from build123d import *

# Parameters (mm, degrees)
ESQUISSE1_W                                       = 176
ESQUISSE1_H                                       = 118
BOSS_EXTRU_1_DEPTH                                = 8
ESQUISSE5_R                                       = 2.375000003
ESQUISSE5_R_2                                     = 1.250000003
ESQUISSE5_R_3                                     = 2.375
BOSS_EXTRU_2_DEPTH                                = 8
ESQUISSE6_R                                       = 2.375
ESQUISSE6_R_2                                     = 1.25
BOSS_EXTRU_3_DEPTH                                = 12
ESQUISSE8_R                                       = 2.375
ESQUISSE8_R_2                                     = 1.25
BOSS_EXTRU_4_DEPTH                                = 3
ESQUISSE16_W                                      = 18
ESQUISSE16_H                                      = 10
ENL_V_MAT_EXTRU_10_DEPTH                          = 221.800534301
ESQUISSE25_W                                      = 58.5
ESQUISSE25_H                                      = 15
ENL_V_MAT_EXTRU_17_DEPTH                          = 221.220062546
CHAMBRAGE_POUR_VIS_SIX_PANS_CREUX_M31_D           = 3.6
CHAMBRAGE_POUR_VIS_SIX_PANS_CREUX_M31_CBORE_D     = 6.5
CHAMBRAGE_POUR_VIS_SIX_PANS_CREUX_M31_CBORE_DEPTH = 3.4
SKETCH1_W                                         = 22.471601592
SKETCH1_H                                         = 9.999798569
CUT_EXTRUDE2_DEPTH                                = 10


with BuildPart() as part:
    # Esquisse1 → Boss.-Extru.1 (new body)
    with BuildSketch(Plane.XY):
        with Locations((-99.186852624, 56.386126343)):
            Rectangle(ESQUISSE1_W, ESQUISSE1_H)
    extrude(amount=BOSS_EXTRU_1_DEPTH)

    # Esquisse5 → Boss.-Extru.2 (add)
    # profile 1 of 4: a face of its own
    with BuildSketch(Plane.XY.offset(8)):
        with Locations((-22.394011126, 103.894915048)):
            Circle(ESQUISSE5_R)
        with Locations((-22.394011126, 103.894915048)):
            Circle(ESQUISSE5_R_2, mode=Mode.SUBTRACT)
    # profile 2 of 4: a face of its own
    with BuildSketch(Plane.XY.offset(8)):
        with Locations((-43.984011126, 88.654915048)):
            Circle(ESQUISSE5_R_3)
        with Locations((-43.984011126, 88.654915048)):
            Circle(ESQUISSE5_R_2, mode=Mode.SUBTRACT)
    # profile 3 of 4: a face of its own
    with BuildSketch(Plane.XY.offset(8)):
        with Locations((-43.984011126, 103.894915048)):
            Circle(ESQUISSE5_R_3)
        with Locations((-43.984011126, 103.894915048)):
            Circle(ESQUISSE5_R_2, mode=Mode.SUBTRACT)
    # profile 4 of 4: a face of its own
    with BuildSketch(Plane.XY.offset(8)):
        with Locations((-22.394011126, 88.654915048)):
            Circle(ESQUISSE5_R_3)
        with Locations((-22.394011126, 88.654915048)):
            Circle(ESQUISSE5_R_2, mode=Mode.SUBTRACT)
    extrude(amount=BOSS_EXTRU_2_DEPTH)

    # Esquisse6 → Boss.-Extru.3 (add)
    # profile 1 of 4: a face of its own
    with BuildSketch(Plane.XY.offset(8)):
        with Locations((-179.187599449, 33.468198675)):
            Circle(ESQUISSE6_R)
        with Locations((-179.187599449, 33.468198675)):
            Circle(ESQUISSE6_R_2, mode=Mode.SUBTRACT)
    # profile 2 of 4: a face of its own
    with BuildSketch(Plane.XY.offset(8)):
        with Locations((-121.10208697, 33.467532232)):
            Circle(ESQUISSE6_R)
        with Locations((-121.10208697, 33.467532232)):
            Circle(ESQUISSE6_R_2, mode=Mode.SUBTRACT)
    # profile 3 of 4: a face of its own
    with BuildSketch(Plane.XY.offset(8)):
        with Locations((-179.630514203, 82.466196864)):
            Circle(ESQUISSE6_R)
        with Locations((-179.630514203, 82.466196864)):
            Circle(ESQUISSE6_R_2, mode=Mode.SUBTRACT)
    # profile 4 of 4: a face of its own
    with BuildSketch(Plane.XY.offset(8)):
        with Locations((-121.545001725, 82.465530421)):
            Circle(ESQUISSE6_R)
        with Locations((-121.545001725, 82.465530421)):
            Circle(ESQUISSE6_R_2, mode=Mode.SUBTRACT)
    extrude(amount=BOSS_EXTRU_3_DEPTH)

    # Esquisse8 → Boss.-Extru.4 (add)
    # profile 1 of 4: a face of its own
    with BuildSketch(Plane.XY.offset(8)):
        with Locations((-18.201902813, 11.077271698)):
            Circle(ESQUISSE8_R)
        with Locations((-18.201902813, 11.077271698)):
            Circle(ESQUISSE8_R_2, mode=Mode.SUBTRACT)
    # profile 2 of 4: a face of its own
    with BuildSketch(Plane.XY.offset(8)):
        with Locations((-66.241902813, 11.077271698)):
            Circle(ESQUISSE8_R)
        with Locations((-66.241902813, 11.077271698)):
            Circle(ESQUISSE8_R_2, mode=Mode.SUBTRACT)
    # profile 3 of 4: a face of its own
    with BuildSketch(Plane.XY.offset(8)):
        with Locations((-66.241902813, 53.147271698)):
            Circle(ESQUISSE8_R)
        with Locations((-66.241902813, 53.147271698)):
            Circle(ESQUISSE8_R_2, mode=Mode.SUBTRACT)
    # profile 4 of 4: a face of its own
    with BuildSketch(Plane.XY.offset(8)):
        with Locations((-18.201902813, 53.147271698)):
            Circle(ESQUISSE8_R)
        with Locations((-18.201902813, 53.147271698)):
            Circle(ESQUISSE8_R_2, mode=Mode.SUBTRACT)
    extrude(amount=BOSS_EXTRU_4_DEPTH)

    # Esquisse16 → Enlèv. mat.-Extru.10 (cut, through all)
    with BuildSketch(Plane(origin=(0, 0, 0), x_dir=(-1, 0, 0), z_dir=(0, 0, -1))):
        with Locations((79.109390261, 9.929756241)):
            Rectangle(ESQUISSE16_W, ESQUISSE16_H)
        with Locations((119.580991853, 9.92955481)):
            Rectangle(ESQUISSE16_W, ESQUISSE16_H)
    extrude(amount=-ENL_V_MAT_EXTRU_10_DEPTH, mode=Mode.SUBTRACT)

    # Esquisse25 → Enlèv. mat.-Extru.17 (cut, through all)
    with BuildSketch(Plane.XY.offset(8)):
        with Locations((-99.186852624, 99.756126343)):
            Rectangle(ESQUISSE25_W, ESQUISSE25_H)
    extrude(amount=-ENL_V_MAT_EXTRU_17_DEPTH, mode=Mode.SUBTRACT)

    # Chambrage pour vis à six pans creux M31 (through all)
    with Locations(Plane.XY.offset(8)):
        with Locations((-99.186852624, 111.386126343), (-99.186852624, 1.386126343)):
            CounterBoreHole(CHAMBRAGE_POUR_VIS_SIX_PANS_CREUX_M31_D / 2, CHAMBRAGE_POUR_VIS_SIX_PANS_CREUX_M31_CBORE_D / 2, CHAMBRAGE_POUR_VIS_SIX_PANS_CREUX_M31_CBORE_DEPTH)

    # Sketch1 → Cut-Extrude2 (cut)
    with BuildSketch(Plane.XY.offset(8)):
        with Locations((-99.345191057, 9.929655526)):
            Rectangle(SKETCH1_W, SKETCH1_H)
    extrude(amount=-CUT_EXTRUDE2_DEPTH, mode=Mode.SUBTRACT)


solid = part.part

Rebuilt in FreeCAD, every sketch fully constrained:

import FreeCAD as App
import Part
import Sketcher

doc = App.newDocument("Part")
body = doc.addObject("PartDesign::Body", "Body")

sketch1 = doc.addObject("Sketcher::SketchObject", "Sketch")
body.addObject(sketch1)
sketch1.AttachmentSupport = (doc.XY_Plane, [""])
sketch1.MapMode = "FlatFace"
sketch1.addGeometry(Part.LineSegment(App.Vector(-187, 115, 0), App.Vector(-187, -3, 0)), False)
sketch1.addGeometry(Part.LineSegment(App.Vector(-187, -3, 0), App.Vector(-11, -3, 0)), False)
sketch1.addGeometry(Part.LineSegment(App.Vector(-11, -3, 0), App.Vector(-11, 115, 0)), False)
sketch1.addGeometry(Part.LineSegment(App.Vector(-11, 115, 0), App.Vector(-187, 115, 0)), False)
sketch1.addConstraint(Sketcher.Constraint("Coincident", 0, 2, 1, 1))
sketch1.addConstraint(Sketcher.Constraint("Coincident", 1, 2, 2, 1))
sketch1.addConstraint(Sketcher.Constraint("Coincident", 2, 2, 3, 1))
sketch1.addConstraint(Sketcher.Constraint("Coincident", 3, 2, 0, 1))
sketch1.addConstraint(Sketcher.Constraint("Vertical", 0))
sketch1.addConstraint(Sketcher.Constraint("Horizontal", 1))
sketch1.addConstraint(Sketcher.Constraint("Vertical", 2))
sketch1.addConstraint(Sketcher.Constraint("Horizontal", 3))
sketch1.addConstraint(Sketcher.Constraint("DistanceX", 1, 1, 1, 2, 176.0))
sketch1.addConstraint(Sketcher.Constraint("DistanceY", 0, 2, 0, 1, 118.0))
sketch1.addConstraint(Sketcher.Constraint("DistanceX", 0, 2, -1, 1, 187.186853))
sketch1.addConstraint(Sketcher.Constraint("DistanceY", 0, 2, -1, 1, 2.613874))
pad1 = doc.addObject("PartDesign::Pad", "Pad")
body.addObject(pad1)
pad1.Profile = sketch1
pad1.Length = 8

sketch2 = doc.addObject("Sketcher::SketchObject", "Sketch001")
body.addObject(sketch2)
sketch2.AttachmentSupport = (doc.XY_Plane, [""])
sketch2.MapMode = "FlatFace"
sketch2.AttachmentOffset = App.Placement(App.Vector(0, 0, 8), App.Rotation())
sketch2.addGeometry(Part.Circle(App.Vector(-22.4, 103.9, 0), App.Vector(0, 0, 1), 2.4), False)
sketch2.addGeometry(Part.Circle(App.Vector(-22.4, 103.9, 0), App.Vector(0, 0, 1), 1.3), False)
sketch2.addGeometry(Part.Circle(App.Vector(-44, 88.7, 0), App.Vector(0, 0, 1), 2.4), False)
sketch2.addGeometry(Part.Circle(App.Vector(-44, 88.7, 0), App.Vector(0, 0, 1), 1.3), False)
sketch2.addGeometry(Part.Circle(App.Vector(-44, 103.9, 0), App.Vector(0, 0, 1), 2.4), False)
sketch2.addGeometry(Part.Circle(App.Vector(-44, 103.9, 0), App.Vector(0, 0, 1), 1.3), False)
sketch2.addGeometry(Part.Circle(App.Vector(-22.4, 88.7, 0), App.Vector(0, 0, 1), 2.4), False)
sketch2.addGeometry(Part.Circle(App.Vector(-22.4, 88.7, 0), App.Vector(0, 0, 1), 1.3), False)
sketch2.addConstraint(Sketcher.Constraint("Coincident", 1, 3, 0, 3))
sketch2.addConstraint(Sketcher.Constraint("Coincident", 3, 3, 2, 3))
sketch2.addConstraint(Sketcher.Constraint("Coincident", 5, 3, 4, 3))
sketch2.addConstraint(Sketcher.Constraint("Coincident", 7, 3, 6, 3))
sketch2.addConstraint(Sketcher.Constraint("Equal", 0, 2))
sketch2.addConstraint(Sketcher.Constraint("Equal", 1, 3))
sketch2.addConstraint(Sketcher.Constraint("Equal", 2, 4))
sketch2.addConstraint(Sketcher.Constraint("Equal", 3, 5))
sketch2.addConstraint(Sketcher.Constraint("Equal", 4, 6))
sketch2.addConstraint(Sketcher.Constraint("Equal", 5, 7))
sketch2.addConstraint(Sketcher.Constraint("Horizontal", 1, 3, 4, 3))
sketch2.addConstraint(Sketcher.Constraint("Horizontal", 3, 3, 6, 3))
sketch2.addConstraint(Sketcher.Constraint("Vertical", 3, 3, 4, 3))
sketch2.addConstraint(Sketcher.Constraint("Vertical", 1, 3, 6, 3))
sketch2.addConstraint(Sketcher.Constraint("Diameter", 1, 2.5))
sketch2.addConstraint(Sketcher.Constraint("Diameter", 0, 4.75))
sketch2.addConstraint(Sketcher.Constraint("DistanceX", 2, 3, 0, 3, 21.59))
sketch2.addConstraint(Sketcher.Constraint("DistanceY", 2, 3, 0, 3, 15.24))
sketch2.addConstraint(Sketcher.Constraint("DistanceX", 0, 3, -1, 1, 22.394011))
sketch2.addConstraint(Sketcher.Constraint("DistanceY", -1, 1, 0, 3, 103.894915))
pad2 = doc.addObject("PartDesign::Pad", "Pad001")
body.addObject(pad2)
pad2.Profile = sketch2
pad2.Length = 8

sketch3 = doc.addObject("Sketcher::SketchObject", "Sketch002")
body.addObject(sketch3)
sketch3.AttachmentSupport = (doc.XY_Plane, [""])
sketch3.MapMode = "FlatFace"
sketch3.AttachmentOffset = App.Placement(App.Vector(0, 0, 8), App.Rotation())
sketch3.addGeometry(Part.Circle(App.Vector(-179.2, 33.5, 0), App.Vector(0, 0, 1), 2.4), False)
sketch3.addGeometry(Part.Circle(App.Vector(-179.2, 33.5, 0), App.Vector(0, 0, 1), 1.2), False)
sketch3.addGeometry(Part.Circle(App.Vector(-121.1, 33.5, 0), App.Vector(0, 0, 1), 2.4), False)
sketch3.addGeometry(Part.Circle(App.Vector(-121.1, 33.5, 0), App.Vector(0, 0, 1), 1.2), False)
sketch3.addGeometry(Part.Circle(App.Vector(-179.6, 82.5, 0), App.Vector(0, 0, 1), 2.4), False)
sketch3.addGeometry(Part.Circle(App.Vector(-179.6, 82.5, 0), App.Vector(0, 0, 1), 1.2), False)
sketch3.addGeometry(Part.Circle(App.Vector(-121.5, 82.5, 0), App.Vector(0, 0, 1), 2.4), False)
sketch3.addGeometry(Part.Circle(App.Vector(-121.5, 82.5, 0), App.Vector(0, 0, 1), 1.2), False)
sketch3.addConstraint(Sketcher.Constraint("Coincident", 1, 3, 0, 3))
sketch3.addConstraint(Sketcher.Constraint("Coincident", 3, 3, 2, 3))
sketch3.addConstraint(Sketcher.Constraint("Coincident", 5, 3, 4, 3))
sketch3.addConstraint(Sketcher.Constraint("Coincident", 7, 3, 6, 3))
sketch3.addConstraint(Sketcher.Constraint("Equal", 0, 2))
sketch3.addConstraint(Sketcher.Constraint("Equal", 1, 3))
sketch3.addConstraint(Sketcher.Constraint("Equal", 2, 4))
sketch3.addConstraint(Sketcher.Constraint("Equal", 3, 5))
sketch3.addConstraint(Sketcher.Constraint("Equal", 4, 6))
sketch3.addConstraint(Sketcher.Constraint("Equal", 5, 7))
sketch3.addConstraint(Sketcher.Constraint("Diameter", 1, 2.5))
sketch3.addConstraint(Sketcher.Constraint("Diameter", 0, 4.75))
sketch3.addConstraint(Sketcher.Constraint("DistanceX", 6, 3, -1, 1, 121.545002))
sketch3.addConstraint(Sketcher.Constraint("DistanceY", 0, 3, 4, 3, 48.997998))
sketch3.addConstraint(Sketcher.Constraint("DistanceY", 2, 3, 6, 3, 48.997998))
sketch3.addConstraint(Sketcher.Constraint("DistanceX", 0, 3, -1, 1, 179.187599))
sketch3.addConstraint(Sketcher.Constraint("DistanceY", -1, 1, 0, 3, 33.468199))
sketch3.addConstraint(Sketcher.Constraint("DistanceY", -1, 1, 6, 3, 82.46553))
sketch3.addConstraint(Sketcher.Constraint("DistanceX", 2, 3, -1, 1, 121.102087))
sketch3.addConstraint(Sketcher.Constraint("DistanceX", 4, 3, -1, 1, 179.630514))
pad3 = doc.addObject("PartDesign::Pad", "Pad002")
body.addObject(pad3)
pad3.Profile = sketch3
pad3.Length = 12

sketch4 = doc.addObject("Sketcher::SketchObject", "Sketch003")
body.addObject(sketch4)
sketch4.AttachmentSupport = (doc.XY_Plane, [""])
sketch4.MapMode = "FlatFace"
sketch4.AttachmentOffset = App.Placement(App.Vector(0, 0, 8), App.Rotation())
sketch4.addGeometry(Part.Circle(App.Vector(-18.2, 11.1, 0), App.Vector(0, 0, 1), 2.4), False)
sketch4.addGeometry(Part.Circle(App.Vector(-18.2, 11.1, 0), App.Vector(0, 0, 1), 1.2), False)
sketch4.addGeometry(Part.Circle(App.Vector(-66.2, 11.1, 0), App.Vector(0, 0, 1), 2.4), False)
sketch4.addGeometry(Part.Circle(App.Vector(-66.2, 11.1, 0), App.Vector(0, 0, 1), 1.2), False)
sketch4.addGeometry(Part.Circle(App.Vector(-66.2, 53.1, 0), App.Vector(0, 0, 1), 2.4), False)
sketch4.addGeometry(Part.Circle(App.Vector(-66.2, 53.1, 0), App.Vector(0, 0, 1), 1.2), False)
sketch4.addGeometry(Part.Circle(App.Vector(-18.2, 53.1, 0), App.Vector(0, 0, 1), 2.4), False)
sketch4.addGeometry(Part.Circle(App.Vector(-18.2, 53.1, 0), App.Vector(0, 0, 1), 1.2), False)
sketch4.addConstraint(Sketcher.Constraint("Coincident", 1, 3, 0, 3))
sketch4.addConstraint(Sketcher.Constraint("Coincident", 3, 3, 2, 3))
sketch4.addConstraint(Sketcher.Constraint("Coincident", 5, 3, 4, 3))
sketch4.addConstraint(Sketcher.Constraint("Coincident", 7, 3, 6, 3))
sketch4.addConstraint(Sketcher.Constraint("Equal", 0, 2))
sketch4.addConstraint(Sketcher.Constraint("Equal", 1, 3))
sketch4.addConstraint(Sketcher.Constraint("Equal", 2, 4))
sketch4.addConstraint(Sketcher.Constraint("Equal", 3, 5))
sketch4.addConstraint(Sketcher.Constraint("Equal", 4, 6))
sketch4.addConstraint(Sketcher.Constraint("Equal", 5, 7))
sketch4.addConstraint(Sketcher.Constraint("Horizontal", 1, 3, 2, 3))
sketch4.addConstraint(Sketcher.Constraint("Horizontal", 5, 3, 6, 3))
sketch4.addConstraint(Sketcher.Constraint("Vertical", 3, 3, 4, 3))
sketch4.addConstraint(Sketcher.Constraint("Vertical", 1, 3, 6, 3))
sketch4.addConstraint(Sketcher.Constraint("Diameter", 1, 2.5))
sketch4.addConstraint(Sketcher.Constraint("Diameter", 0, 4.75))
sketch4.addConstraint(Sketcher.Constraint("DistanceX", 2, 3, 0, 3, 48.04))
sketch4.addConstraint(Sketcher.Constraint("DistanceY", 2, 3, 4, 3, 42.07))
sketch4.addConstraint(Sketcher.Constraint("DistanceY", -1, 1, 0, 3, 11.077272))
sketch4.addConstraint(Sketcher.Constraint("DistanceX", 0, 3, -1, 1, 18.201903))
pad4 = doc.addObject("PartDesign::Pad", "Pad003")
body.addObject(pad4)
pad4.Profile = sketch4
pad4.Length = 3

sketch5 = doc.addObject("Sketcher::SketchObject", "Sketch004")
body.addObject(sketch5)
sketch5.AttachmentSupport = (doc.XY_Plane, [""])
sketch5.MapMode = "FlatFace"
sketch5.addGeometry(Part.LineSegment(App.Vector(-70, 15, 0), App.Vector(-70, 5, 0)), False)
sketch5.addGeometry(Part.LineSegment(App.Vector(-70, 5, 0), App.Vector(-88, 5, 0)), False)
sketch5.addGeometry(Part.LineSegment(App.Vector(-88, 5, 0), App.Vector(-88, 15, 0)), False)
sketch5.addGeometry(Part.LineSegment(App.Vector(-88, 15, 0), App.Vector(-70, 15, 0)), False)
sketch5.addGeometry(Part.LineSegment(App.Vector(-111, 15, 0), App.Vector(-111, 5, 0)), False)
sketch5.addGeometry(Part.LineSegment(App.Vector(-111, 5, 0), App.Vector(-129, 5, 0)), False)
sketch5.addGeometry(Part.LineSegment(App.Vector(-129, 5, 0), App.Vector(-129, 15, 0)), False)
sketch5.addGeometry(Part.LineSegment(App.Vector(-129, 15, 0), App.Vector(-111, 15, 0)), False)
sketch5.addConstraint(Sketcher.Constraint("Coincident", 0, 2, 1, 1))
sketch5.addConstraint(Sketcher.Constraint("Coincident", 1, 2, 2, 1))
sketch5.addConstraint(Sketcher.Constraint("Coincident", 2, 2, 3, 1))
sketch5.addConstraint(Sketcher.Constraint("Coincident", 3, 2, 0, 1))
sketch5.addConstraint(Sketcher.Constraint("Coincident", 4, 2, 5, 1))
sketch5.addConstraint(Sketcher.Constraint("Coincident", 5, 2, 6, 1))
sketch5.addConstraint(Sketcher.Constraint("Coincident", 6, 2, 7, 1))
sketch5.addConstraint(Sketcher.Constraint("Coincident", 7, 2, 4, 1))
sketch5.addConstraint(Sketcher.Constraint("Vertical", 0))
sketch5.addConstraint(Sketcher.Constraint("Horizontal", 1))
sketch5.addConstraint(Sketcher.Constraint("Vertical", 2))
sketch5.addConstraint(Sketcher.Constraint("Horizontal", 3))
sketch5.addConstraint(Sketcher.Constraint("Vertical", 4))
sketch5.addConstraint(Sketcher.Constraint("Horizontal", 5))
sketch5.addConstraint(Sketcher.Constraint("Vertical", 6))
sketch5.addConstraint(Sketcher.Constraint("Horizontal", 7))
sketch5.addConstraint(Sketcher.Constraint("Equal", 3, 5))
sketch5.addConstraint(Sketcher.Constraint("Equal", 2, 4))
sketch5.addConstraint(Sketcher.Constraint("DistanceX", 1, 2, 1, 1, 18.0))
sketch5.addConstraint(Sketcher.Constraint("DistanceY", 0, 2, 0, 1, 10.0))
sketch5.addConstraint(Sketcher.Constraint("DistanceX", 4, 2, 1, 2, 22.471602))
sketch5.addConstraint(Sketcher.Constraint("DistanceY", 4, 2, 1, 2, 0.000201))
sketch5.addConstraint(Sketcher.Constraint("DistanceX", 0, 2, -1, 1, 70.10939))
sketch5.addConstraint(Sketcher.Constraint("DistanceY", -1, 1, 0, 2, 4.929756))
pocket1 = doc.addObject("PartDesign::Pocket", "Pocket")
body.addObject(pocket1)
pocket1.Profile = sketch5
pocket1.Type = "ThroughAll"
pocket1.Reversed = True

sketch6 = doc.addObject("Sketcher::SketchObject", "Sketch005")
body.addObject(sketch6)
sketch6.AttachmentSupport = (doc.XY_Plane, [""])
sketch6.MapMode = "FlatFace"
sketch6.AttachmentOffset = App.Placement(App.Vector(0, 0, 8), App.Rotation())
sketch6.addGeometry(Part.LineSegment(App.Vector(-128, 107, 0), App.Vector(-128, 92, 0)), False)
sketch6.addGeometry(Part.LineSegment(App.Vector(-128, 92, 0), App.Vector(-70, 92, 0)), False)
sketch6.addGeometry(Part.LineSegment(App.Vector(-70, 92, 0), App.Vector(-70, 107, 0)), False)
sketch6.addGeometry(Part.LineSegment(App.Vector(-70, 107, 0), App.Vector(-128, 107, 0)), False)
sketch6.addConstraint(Sketcher.Constraint("Coincident", 0, 2, 1, 1))
sketch6.addConstraint(Sketcher.Constraint("Coincident", 1, 2, 2, 1))
sketch6.addConstraint(Sketcher.Constraint("Coincident", 2, 2, 3, 1))
sketch6.addConstraint(Sketcher.Constraint("Coincident", 3, 2, 0, 1))
sketch6.addConstraint(Sketcher.Constraint("Vertical", 0))
sketch6.addConstraint(Sketcher.Constraint("Horizontal", 1))
sketch6.addConstraint(Sketcher.Constraint("Vertical", 2))
sketch6.addConstraint(Sketcher.Constraint("Horizontal", 3))
sketch6.addConstraint(Sketcher.Constraint("DistanceY", 0, 2, 0, 1, 15.0))
sketch6.addConstraint(Sketcher.Constraint("DistanceX", 1, 1, 1, 2, 58.5))
sketch6.addConstraint(Sketcher.Constraint("DistanceX", 0, 2, -1, 1, 128.436853))
sketch6.addConstraint(Sketcher.Constraint("DistanceY", -1, 1, 0, 2, 92.256126))
pocket2 = doc.addObject("PartDesign::Pocket", "Pocket001")
body.addObject(pocket2)
pocket2.Profile = sketch6
pocket2.Type = "ThroughAll"

sketch7 = doc.addObject("Sketcher::SketchObject", "Sketch006")
body.addObject(sketch7)
sketch7.AttachmentSupport = (doc.XY_Plane, [""])
sketch7.MapMode = "FlatFace"
sketch7.AttachmentOffset = App.Placement(App.Vector(0, 0, 8), App.Rotation())
sketch7.addGeometry(Part.Circle(App.Vector(-99.2, 111.4, 0), App.Vector(0, 0, 1), 1.8), False)
sketch7.addGeometry(Part.Circle(App.Vector(-99.2, 1.4, 0), App.Vector(0, 0, 1), 1.8), False)
sketch7.addConstraint(Sketcher.Constraint("Equal", 0, 1))
sketch7.addConstraint(Sketcher.Constraint("Vertical", 0, 3, 1, 3))
sketch7.addConstraint(Sketcher.Constraint("Diameter", 0, 3.6))
sketch7.addConstraint(Sketcher.Constraint("DistanceY", 1, 3, 0, 3, 110.0))
sketch7.addConstraint(Sketcher.Constraint("DistanceX", 0, 3, -1, 1, 99.186853))
sketch7.addConstraint(Sketcher.Constraint("DistanceY", -1, 1, 0, 3, 111.386126))
doc.recompute()
hole = doc.addObject("PartDesign::Hole", "Hole")
body.addObject(hole)
hole.Profile = sketch7
hole.ThreadType = "None"
hole.Diameter = 3.6
hole.DepthType = "ThroughAll"
hole.HoleCutType = "Counterbore"
hole.HoleCutDiameter = 6.5
hole.HoleCutDepth = 3.4

sketch8 = doc.addObject("Sketcher::SketchObject", "Sketch007")
body.addObject(sketch8)
sketch8.AttachmentSupport = (doc.XY_Plane, [""])
sketch8.MapMode = "FlatFace"
sketch8.AttachmentOffset = App.Placement(App.Vector(0, 0, 8), App.Rotation())
sketch8.addGeometry(Part.LineSegment(App.Vector(-111, 15, 0), App.Vector(-111, 5, 0)), False)
sketch8.addGeometry(Part.LineSegment(App.Vector(-111, 5, 0), App.Vector(-88, 5, 0)), False)
sketch8.addGeometry(Part.LineSegment(App.Vector(-88, 5, 0), App.Vector(-88, 15, 0)), False)
sketch8.addGeometry(Part.LineSegment(App.Vector(-88, 15, 0), App.Vector(-111, 15, 0)), False)
sketch8.addConstraint(Sketcher.Constraint("Coincident", 0, 2, 1, 1))
sketch8.addConstraint(Sketcher.Constraint("Coincident", 1, 2, 2, 1))
sketch8.addConstraint(Sketcher.Constraint("Coincident", 2, 2, 3, 1))
sketch8.addConstraint(Sketcher.Constraint("Coincident", 3, 2, 0, 1))
sketch8.addConstraint(Sketcher.Constraint("Vertical", 0))
sketch8.addConstraint(Sketcher.Constraint("Horizontal", 1))
sketch8.addConstraint(Sketcher.Constraint("Vertical", 2))
sketch8.addConstraint(Sketcher.Constraint("Horizontal", 3))
sketch8.addConstraint(Sketcher.Constraint("DistanceX", 1, 1, 1, 2, 22.471602))
sketch8.addConstraint(Sketcher.Constraint("DistanceY", 0, 2, 0, 1, 9.999799))
sketch8.addConstraint(Sketcher.Constraint("DistanceX", 0, 2, -1, 1, 110.580992))
sketch8.addConstraint(Sketcher.Constraint("DistanceY", -1, 1, 0, 2, 4.929756))
pocket3 = doc.addObject("PartDesign::Pocket", "Pocket002")
body.addObject(pocket3)
pocket3.Profile = sketch8
pocket3.Length = 10

doc.recompute()
